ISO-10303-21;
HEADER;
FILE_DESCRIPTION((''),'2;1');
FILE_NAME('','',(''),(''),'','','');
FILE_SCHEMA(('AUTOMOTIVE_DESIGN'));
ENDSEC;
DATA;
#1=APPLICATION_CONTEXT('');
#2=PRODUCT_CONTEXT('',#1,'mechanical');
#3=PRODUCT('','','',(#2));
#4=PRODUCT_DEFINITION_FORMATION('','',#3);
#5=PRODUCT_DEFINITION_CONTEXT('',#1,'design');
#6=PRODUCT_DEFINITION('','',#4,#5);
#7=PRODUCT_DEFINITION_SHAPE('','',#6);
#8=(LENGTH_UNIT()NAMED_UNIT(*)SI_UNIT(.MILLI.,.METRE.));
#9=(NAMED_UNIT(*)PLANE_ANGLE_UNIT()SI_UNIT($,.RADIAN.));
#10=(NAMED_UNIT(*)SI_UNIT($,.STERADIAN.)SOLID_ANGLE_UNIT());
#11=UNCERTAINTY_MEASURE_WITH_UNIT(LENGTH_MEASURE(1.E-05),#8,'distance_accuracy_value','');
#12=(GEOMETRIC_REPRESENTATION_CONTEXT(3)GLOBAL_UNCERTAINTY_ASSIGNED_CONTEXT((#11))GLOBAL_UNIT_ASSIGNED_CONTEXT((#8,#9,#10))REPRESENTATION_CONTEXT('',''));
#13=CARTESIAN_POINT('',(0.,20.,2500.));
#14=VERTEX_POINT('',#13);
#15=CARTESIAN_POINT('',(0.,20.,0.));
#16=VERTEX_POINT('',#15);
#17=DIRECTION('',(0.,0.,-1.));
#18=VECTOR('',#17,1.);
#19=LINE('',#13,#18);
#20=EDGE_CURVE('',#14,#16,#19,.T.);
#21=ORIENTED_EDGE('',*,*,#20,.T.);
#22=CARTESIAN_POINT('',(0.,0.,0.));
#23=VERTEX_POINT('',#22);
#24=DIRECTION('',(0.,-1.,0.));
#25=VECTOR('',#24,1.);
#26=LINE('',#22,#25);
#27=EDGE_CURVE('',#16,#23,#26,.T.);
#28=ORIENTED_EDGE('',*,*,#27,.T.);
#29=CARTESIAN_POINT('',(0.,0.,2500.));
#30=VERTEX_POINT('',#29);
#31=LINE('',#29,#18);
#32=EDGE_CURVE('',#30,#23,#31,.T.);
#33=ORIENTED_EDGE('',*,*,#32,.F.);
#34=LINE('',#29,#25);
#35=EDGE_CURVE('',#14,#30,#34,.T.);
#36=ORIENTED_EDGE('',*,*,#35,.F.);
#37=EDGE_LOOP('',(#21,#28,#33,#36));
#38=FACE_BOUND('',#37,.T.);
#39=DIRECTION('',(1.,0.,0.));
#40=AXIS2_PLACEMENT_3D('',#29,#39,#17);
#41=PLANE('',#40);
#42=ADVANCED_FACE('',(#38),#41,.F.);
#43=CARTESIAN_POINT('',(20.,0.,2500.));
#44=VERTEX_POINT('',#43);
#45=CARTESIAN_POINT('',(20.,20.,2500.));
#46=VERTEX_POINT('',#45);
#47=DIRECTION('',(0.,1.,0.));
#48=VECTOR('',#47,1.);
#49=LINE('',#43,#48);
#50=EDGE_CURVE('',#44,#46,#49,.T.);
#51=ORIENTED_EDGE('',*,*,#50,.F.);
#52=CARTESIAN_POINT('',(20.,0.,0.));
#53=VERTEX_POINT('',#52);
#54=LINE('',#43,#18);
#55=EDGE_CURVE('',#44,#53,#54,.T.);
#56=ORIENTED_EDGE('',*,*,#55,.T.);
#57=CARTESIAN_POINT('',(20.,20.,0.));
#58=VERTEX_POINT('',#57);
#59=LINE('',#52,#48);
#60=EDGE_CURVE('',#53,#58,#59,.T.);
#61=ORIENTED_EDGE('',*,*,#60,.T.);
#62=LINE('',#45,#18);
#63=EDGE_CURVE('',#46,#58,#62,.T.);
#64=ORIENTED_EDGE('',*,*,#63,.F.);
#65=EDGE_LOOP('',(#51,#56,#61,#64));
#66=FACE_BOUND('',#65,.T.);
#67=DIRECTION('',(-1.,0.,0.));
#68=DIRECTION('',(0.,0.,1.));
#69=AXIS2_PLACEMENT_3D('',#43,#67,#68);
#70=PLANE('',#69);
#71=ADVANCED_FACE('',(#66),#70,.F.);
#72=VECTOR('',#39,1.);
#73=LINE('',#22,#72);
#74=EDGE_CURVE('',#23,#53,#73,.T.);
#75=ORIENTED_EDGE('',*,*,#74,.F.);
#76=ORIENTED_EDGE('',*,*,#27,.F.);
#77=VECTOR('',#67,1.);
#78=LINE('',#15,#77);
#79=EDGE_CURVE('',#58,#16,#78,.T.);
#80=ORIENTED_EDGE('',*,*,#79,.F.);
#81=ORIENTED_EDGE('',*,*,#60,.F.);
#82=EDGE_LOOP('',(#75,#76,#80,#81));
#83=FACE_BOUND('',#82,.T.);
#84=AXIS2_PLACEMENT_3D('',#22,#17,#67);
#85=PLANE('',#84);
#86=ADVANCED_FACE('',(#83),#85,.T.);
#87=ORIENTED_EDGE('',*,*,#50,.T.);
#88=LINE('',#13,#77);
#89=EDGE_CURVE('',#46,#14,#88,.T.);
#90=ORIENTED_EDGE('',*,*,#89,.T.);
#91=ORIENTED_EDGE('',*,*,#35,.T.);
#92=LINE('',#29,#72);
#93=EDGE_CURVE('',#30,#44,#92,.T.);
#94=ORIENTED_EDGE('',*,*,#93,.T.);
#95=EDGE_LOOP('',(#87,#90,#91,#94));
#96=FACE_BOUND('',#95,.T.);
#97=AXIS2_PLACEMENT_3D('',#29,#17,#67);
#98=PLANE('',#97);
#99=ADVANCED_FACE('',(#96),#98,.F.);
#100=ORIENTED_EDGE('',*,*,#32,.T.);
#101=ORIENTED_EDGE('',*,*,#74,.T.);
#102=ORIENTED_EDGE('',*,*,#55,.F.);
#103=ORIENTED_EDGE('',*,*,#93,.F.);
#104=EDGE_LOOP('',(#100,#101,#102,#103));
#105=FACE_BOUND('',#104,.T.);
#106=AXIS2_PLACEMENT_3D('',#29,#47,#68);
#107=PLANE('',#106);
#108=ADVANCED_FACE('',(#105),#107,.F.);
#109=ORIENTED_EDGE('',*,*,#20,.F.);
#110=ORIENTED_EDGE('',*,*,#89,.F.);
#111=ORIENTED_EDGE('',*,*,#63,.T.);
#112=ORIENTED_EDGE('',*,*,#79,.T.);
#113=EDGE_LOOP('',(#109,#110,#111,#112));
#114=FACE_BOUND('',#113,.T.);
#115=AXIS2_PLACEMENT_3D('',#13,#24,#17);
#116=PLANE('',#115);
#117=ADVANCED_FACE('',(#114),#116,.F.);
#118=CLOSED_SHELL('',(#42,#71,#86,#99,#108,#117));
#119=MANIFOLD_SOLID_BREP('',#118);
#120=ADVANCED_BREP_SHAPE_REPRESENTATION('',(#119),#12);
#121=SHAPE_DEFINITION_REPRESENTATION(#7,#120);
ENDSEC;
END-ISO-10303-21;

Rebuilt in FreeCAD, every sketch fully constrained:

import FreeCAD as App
import Part
import Sketcher

V = App.Vector
Q = App.Units.Quantity


def add_polygon(sketch, points):
    """Adds a closed chain of lines whose ends are joined by coincident constraints."""
    first, n = sketch.GeometryCount, len(points)
    for a, b in zip(points, points[1:] + points[:1]):
        sketch.addGeometry(Part.LineSegment(App.Vector(*a, 0), App.Vector(*b, 0)), False)
    for i in range(n):
        sketch.addConstraint(Sketcher.Constraint("Coincident", first + i, 2, first + (i + 1) % n, 1))

doc = App.newDocument("Part")
params = doc.addObject("Spreadsheet::Sheet", "Params")
for row, (alias, value) in enumerate([
    ("sketch1_width", "20 mm"),
    ("pad1_length", "2500 mm"),
], start=1):
    params.set(f"A{row}", alias)
    params.set(f"B{row}", "=" + value)
    params.setAlias(f"B{row}", alias)

body = doc.addObject("PartDesign::Body", "Body")

# Sketch on XY plane
sketch1 = doc.addObject("Sketcher::SketchObject", "Sketch")
body.addObject(sketch1)
sketch1.AttachmentSupport = (doc.XY_Plane, [""])
sketch1.MapMode = "FlatFace"
add_polygon(sketch1, [(0, 20), (0, 0), (20, 0), (20, 20)])  # lines 0-3
sketch1.addConstraint(Sketcher.Constraint("Vertical", 0))
sketch1.addConstraint(Sketcher.Constraint("Horizontal", 1))
sketch1.addConstraint(Sketcher.Constraint("Vertical", 2))
sketch1.addConstraint(Sketcher.Constraint("Horizontal", 3))
sketch1.addConstraint(Sketcher.Constraint("Coincident", 0, 2, -1, 1))
sketch1.addConstraint(Sketcher.Constraint("Equal", 3, 0))
sketch1.addConstraint(Sketcher.Constraint("DistanceX", 1, 1, 1, 2, Q("20 mm")))
sketch1.setExpression("Constraints[10]", "Params.sketch1_width")
pad1 = doc.addObject("PartDesign::Pad", "Pad")
body.addObject(pad1)
pad1.Profile = sketch1
pad1.setExpression("Length", "Params.pad1_length")

doc.recompute()
